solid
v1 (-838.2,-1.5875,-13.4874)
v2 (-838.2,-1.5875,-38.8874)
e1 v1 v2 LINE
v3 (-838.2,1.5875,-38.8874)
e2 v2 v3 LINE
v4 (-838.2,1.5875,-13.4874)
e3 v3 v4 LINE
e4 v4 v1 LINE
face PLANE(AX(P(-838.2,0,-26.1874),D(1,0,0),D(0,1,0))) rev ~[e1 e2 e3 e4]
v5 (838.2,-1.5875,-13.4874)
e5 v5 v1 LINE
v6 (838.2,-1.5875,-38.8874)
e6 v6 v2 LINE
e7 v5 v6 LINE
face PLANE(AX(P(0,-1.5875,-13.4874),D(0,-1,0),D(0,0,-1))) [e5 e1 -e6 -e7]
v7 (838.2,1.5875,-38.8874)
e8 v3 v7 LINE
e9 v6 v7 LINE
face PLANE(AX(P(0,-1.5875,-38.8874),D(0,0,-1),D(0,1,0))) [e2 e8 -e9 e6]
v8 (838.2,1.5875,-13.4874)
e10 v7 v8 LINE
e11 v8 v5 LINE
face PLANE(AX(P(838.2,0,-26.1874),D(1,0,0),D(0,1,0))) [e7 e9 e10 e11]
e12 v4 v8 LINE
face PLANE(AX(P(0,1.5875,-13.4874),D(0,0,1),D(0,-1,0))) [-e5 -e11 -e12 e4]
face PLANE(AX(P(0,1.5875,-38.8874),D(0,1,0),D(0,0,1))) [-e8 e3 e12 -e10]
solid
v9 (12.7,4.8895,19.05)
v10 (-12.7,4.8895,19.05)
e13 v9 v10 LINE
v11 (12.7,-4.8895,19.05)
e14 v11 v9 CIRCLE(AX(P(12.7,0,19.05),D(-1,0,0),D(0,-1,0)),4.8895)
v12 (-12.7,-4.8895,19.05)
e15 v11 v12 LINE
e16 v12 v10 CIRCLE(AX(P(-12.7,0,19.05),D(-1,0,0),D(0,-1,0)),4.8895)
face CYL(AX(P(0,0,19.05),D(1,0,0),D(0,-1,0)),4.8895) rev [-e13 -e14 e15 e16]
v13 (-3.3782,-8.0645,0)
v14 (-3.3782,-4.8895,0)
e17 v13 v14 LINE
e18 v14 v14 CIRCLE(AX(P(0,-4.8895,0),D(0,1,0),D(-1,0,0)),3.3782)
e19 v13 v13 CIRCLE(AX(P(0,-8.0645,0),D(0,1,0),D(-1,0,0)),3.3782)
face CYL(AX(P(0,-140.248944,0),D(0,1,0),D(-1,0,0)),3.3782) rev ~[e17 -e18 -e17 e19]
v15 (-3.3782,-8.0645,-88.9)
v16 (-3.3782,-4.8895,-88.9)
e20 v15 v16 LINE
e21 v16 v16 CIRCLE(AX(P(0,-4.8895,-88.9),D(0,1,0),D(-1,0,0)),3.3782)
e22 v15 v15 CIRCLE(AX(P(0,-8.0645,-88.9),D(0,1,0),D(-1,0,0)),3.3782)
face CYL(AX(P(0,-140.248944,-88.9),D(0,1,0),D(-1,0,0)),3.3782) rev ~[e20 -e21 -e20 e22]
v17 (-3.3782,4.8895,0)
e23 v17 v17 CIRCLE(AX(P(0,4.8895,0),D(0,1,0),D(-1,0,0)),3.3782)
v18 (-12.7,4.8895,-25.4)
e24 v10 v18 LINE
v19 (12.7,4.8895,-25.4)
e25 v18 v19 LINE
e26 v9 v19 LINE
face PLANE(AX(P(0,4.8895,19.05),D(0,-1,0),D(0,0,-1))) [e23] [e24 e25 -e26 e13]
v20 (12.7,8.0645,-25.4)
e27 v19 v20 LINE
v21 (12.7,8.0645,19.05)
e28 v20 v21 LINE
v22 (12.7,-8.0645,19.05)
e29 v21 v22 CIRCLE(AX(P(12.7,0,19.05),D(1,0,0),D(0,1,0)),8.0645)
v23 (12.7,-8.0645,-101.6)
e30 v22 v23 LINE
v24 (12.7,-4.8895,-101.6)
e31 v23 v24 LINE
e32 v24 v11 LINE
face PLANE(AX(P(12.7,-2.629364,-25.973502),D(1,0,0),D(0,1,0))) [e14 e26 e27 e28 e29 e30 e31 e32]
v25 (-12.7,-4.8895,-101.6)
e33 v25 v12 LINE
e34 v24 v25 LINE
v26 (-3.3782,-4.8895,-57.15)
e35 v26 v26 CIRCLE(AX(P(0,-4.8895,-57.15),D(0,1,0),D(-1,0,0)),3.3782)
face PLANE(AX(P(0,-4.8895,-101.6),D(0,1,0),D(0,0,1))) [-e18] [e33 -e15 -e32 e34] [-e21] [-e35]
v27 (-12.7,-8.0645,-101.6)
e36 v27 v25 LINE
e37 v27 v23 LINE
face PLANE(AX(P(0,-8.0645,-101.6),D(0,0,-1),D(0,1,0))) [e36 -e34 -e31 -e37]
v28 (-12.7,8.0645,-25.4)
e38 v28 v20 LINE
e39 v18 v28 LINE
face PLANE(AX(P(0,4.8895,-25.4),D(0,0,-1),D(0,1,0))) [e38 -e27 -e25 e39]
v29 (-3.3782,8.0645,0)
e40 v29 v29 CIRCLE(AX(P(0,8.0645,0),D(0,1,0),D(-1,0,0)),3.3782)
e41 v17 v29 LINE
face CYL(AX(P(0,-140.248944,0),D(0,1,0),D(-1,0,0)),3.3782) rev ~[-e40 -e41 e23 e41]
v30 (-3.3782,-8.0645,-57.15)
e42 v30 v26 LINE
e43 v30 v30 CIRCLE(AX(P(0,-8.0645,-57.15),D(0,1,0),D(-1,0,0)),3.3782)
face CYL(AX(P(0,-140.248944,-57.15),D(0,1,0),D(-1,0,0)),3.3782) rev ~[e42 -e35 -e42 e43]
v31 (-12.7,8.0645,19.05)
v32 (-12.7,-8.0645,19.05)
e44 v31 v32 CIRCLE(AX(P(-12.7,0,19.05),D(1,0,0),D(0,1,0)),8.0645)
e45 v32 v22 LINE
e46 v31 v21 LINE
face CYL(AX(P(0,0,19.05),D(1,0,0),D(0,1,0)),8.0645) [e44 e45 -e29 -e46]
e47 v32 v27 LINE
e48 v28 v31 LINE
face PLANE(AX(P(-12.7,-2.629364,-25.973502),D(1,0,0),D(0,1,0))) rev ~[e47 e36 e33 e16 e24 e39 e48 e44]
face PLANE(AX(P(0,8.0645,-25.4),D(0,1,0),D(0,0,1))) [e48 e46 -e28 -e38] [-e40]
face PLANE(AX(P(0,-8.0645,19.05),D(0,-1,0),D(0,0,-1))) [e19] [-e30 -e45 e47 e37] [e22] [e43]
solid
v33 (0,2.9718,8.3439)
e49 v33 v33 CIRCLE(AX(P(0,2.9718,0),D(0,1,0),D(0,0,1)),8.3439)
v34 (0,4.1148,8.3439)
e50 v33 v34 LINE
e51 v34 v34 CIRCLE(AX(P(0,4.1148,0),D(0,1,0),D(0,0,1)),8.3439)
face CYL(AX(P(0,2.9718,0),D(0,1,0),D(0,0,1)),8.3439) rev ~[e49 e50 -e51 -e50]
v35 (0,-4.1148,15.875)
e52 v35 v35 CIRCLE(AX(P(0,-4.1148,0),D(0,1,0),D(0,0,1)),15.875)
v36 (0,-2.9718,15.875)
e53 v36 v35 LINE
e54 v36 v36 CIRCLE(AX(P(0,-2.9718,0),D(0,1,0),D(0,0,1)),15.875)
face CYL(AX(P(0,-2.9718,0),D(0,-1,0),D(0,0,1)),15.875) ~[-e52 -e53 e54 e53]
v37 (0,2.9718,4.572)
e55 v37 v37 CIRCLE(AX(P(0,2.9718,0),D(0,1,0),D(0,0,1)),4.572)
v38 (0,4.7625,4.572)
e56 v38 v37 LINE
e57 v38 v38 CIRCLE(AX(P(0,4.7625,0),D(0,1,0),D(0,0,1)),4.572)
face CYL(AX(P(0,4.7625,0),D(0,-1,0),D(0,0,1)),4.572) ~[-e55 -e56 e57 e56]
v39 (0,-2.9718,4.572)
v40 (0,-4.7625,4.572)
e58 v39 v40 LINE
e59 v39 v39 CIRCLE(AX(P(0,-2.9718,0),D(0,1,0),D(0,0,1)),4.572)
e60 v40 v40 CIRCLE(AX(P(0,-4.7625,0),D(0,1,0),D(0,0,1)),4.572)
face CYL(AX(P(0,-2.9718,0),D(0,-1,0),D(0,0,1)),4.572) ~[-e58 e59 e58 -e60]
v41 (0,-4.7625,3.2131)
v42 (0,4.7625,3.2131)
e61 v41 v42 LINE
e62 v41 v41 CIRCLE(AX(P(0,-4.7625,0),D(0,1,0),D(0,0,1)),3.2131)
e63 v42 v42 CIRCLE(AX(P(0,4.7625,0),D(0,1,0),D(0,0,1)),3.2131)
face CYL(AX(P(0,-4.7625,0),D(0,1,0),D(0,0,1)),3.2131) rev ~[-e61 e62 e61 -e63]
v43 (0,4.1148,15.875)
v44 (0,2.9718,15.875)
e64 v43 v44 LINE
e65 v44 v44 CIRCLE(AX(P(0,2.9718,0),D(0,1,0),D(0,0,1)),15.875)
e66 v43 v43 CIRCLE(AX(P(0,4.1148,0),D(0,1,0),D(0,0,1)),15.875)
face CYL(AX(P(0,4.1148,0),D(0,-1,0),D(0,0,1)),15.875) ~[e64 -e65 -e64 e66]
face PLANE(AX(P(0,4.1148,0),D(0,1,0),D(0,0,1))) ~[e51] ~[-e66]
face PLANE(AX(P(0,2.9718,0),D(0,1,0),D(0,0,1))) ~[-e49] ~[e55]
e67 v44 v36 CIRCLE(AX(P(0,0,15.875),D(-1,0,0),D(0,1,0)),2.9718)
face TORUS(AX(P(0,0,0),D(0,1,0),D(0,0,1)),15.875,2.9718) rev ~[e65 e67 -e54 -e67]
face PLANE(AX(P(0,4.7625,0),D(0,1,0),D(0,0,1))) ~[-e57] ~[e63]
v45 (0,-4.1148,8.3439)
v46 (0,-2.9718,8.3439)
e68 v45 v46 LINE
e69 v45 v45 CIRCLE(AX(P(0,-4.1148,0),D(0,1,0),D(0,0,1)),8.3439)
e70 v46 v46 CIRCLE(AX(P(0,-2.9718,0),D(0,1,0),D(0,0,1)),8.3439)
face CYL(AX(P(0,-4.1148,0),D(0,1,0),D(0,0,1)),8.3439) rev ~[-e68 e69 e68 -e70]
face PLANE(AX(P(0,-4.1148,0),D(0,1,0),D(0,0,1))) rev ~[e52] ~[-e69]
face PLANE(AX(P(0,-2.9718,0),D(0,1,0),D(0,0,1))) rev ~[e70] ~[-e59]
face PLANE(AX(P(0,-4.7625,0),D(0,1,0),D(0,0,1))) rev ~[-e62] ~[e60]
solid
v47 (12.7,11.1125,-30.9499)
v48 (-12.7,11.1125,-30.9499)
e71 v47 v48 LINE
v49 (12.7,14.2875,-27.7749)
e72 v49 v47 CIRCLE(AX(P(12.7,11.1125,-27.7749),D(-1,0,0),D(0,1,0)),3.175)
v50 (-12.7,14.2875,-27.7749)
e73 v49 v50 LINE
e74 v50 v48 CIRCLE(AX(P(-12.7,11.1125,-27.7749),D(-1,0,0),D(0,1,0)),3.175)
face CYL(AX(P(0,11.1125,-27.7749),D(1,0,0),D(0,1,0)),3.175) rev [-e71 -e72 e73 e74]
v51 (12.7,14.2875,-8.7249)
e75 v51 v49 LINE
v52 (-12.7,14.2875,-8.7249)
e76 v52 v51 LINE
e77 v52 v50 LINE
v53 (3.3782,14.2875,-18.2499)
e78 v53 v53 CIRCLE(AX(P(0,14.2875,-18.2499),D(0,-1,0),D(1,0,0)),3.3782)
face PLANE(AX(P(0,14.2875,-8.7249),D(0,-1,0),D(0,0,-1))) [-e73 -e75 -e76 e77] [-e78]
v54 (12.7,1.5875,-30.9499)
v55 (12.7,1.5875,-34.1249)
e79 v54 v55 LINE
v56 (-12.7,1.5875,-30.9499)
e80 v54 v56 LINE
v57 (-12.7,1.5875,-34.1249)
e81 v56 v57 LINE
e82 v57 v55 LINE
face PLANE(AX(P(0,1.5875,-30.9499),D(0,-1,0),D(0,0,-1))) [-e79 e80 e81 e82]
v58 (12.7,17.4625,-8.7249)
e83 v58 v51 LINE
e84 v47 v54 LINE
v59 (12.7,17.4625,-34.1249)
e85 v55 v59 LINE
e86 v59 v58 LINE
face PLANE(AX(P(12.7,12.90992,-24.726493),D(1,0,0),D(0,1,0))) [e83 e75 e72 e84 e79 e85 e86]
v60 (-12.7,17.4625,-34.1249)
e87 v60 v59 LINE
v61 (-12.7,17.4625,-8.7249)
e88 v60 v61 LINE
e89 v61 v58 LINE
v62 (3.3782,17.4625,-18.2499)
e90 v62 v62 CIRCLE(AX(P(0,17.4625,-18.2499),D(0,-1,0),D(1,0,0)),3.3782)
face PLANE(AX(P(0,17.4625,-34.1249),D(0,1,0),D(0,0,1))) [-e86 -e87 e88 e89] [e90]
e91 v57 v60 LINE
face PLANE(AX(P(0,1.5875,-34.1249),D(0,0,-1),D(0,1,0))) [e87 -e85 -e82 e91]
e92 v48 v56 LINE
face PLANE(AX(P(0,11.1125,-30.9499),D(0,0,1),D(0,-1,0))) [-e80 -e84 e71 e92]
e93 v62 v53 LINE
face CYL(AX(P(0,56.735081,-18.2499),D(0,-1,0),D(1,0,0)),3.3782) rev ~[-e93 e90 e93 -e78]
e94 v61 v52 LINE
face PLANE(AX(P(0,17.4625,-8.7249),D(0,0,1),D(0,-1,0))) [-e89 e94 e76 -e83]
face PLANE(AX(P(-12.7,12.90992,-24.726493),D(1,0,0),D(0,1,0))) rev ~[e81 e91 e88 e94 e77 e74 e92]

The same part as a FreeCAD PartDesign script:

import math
import FreeCAD as App
import Part
import Sketcher

V = App.Vector
Q = App.Units.Quantity


def add_polygon(sketch, points):
    """Adds a closed chain of lines whose ends are joined by coincident constraints."""
    first, n = sketch.GeometryCount, len(points)
    for a, b in zip(points, points[1:] + points[:1]):
        sketch.addGeometry(Part.LineSegment(App.Vector(*a, 0), App.Vector(*b, 0)), False)
    for i in range(n):
        sketch.addConstraint(Sketcher.Constraint("Coincident", first + i, 2, first + (i + 1) % n, 1))

doc = App.newDocument("Part")
body = doc.addObject("PartDesign::Body", "Body")

# Sketch on YZ plane
sketch1 = doc.addObject("Sketcher::SketchObject", "Sketch")
body.addObject(sketch1)
sketch1.AttachmentSupport = (doc.YZ_Plane, [""])
sketch1.MapMode = "FlatFace"
sketch1.addGeometry([
    Part.LineSegment(V(-4.8, 4.6, 0), V(-4.8, 3.2, 0)),  # 0
    Part.LineSegment(V(-4.8, 3.2, 0), V(4.8, 3.2, 0)),  # 1
    Part.LineSegment(V(4.8, 3.2, 0), V(4.8, 4.6, 0)),  # 2
    Part.LineSegment(V(4.8, 4.6, 0), V(3, 4.6, 0)),  # 3
    Part.LineSegment(V(3, 4.6, 0), V(3, 8.3, 0)),  # 4
    Part.LineSegment(V(3, 8.3, 0), V(4.1, 8.3, 0)),  # 5
    Part.LineSegment(V(4.1, 8.3, 0), V(4.1, 15.9, 0)),  # 6
    Part.LineSegment(V(4.1, 15.9, 0), V(3, 15.9, 0)),  # 7
    Part.ArcOfCircle(Part.Circle(V(0, 15.9, 0), V(0, 0, 1), 3), math.radians(180), math.radians(360)),  # 8
    Part.LineSegment(V(-3, 15.9, 0), V(-4.1, 15.9, 0)),  # 9
    Part.LineSegment(V(-4.1, 15.9, 0), V(-4.1, 8.3, 0)),  # 10
    Part.LineSegment(V(-4.1, 8.3, 0), V(-3, 8.3, 0)),  # 11
    Part.LineSegment(V(-3, 8.3, 0), V(-3, 4.6, 0)),  # 12
    Part.LineSegment(V(-3, 4.6, 0), V(-4.8, 4.6, 0)),  # 13
], False)
sketch1.addConstraint([
    Sketcher.Constraint("Coincident", 0, 2, 1, 1),
    Sketcher.Constraint("Coincident", 1, 2, 2, 1),
    Sketcher.Constraint("Coincident", 2, 2, 3, 1),
    Sketcher.Constraint("Coincident", 3, 2, 4, 1),
    Sketcher.Constraint("Coincident", 4, 2, 5, 1),
    Sketcher.Constraint("Coincident", 5, 2, 6, 1),
    Sketcher.Constraint("Coincident", 6, 2, 7, 1),
    Sketcher.Constraint("Coincident", 7, 2, 8, 2),
    Sketcher.Constraint("Coincident", 8, 1, 9, 1),
    Sketcher.Constraint("Coincident", 9, 2, 10, 1),
    Sketcher.Constraint("Coincident", 10, 2, 11, 1),
    Sketcher.Constraint("Coincident", 11, 2, 12, 1),
    Sketcher.Constraint("Coincident", 12, 2, 13, 1),
    Sketcher.Constraint("Coincident", 13, 2, 0, 1),
    Sketcher.Constraint("Vertical", 0),
    Sketcher.Constraint("Horizontal", 1),
    Sketcher.Constraint("Vertical", 2),
    Sketcher.Constraint("Horizontal", 3),
    Sketcher.Constraint("Vertical", 4),
    Sketcher.Constraint("Horizontal", 5),
    Sketcher.Constraint("Vertical", 6),
    Sketcher.Constraint("Horizontal", 7),
    Sketcher.Constraint("Horizontal", 9),
    Sketcher.Constraint("Vertical", 10),
    Sketcher.Constraint("Horizontal", 11),
    Sketcher.Constraint("Vertical", 12),
    Sketcher.Constraint("Horizontal", 13),
    Sketcher.Constraint("Symmetric", 7, 2, 8, 1, -2),
    Sketcher.Constraint("Symmetric", 5, 2, 10, 2, -2),
    Sketcher.Constraint("Symmetric", 3, 2, 12, 2, -2),
    Sketcher.Constraint("Horizontal", 8, 3, 6, 2),
    Sketcher.Constraint("Vertical", 4, 2, 7, 2),
    Sketcher.Constraint("Equal", 3, 13),
    Sketcher.Constraint("Radius", 8, Q("0.117 in")),
    Sketcher.Constraint("DistanceX", 1, 1, 1, 2, Q("0.375 in")),
    Sketcher.Constraint("DistanceX", 5, 1, 5, 2, Q("0.045 in")),
    Sketcher.Constraint("DistanceY", -1, 1, 2, 2, Q("0.18 in")),
    Sketcher.Constraint("DistanceY", 0, 2, 0, 1, Q("0.0535 in")),
    Sketcher.Constraint("DistanceY", 4, 1, 4, 2, Q("0.1485 in")),
    Sketcher.Constraint("DistanceY", 6, 1, 6, 2, Q("0.2965 in")),
])
revolution = doc.addObject("PartDesign::Revolution", "Revolution")
body.addObject(revolution)
revolution.Profile = sketch1
revolution.ReferenceAxis = (sketch1, ["H_Axis"])
revolution.Angle = 360
body2 = doc.addObject("PartDesign::Body", "Body001")

# Sketch on YZ plane
sketch2 = doc.addObject("Sketcher::SketchObject", "Sketch001")
body2.addObject(sketch2)
sketch2.AttachmentSupport = (doc.getObject("YZ_Plane001"), [""])
sketch2.MapMode = "FlatFace"
add_polygon(sketch2, [(-1.6, -38.9), (1.6, -38.9), (1.6, -13.5), (-1.6, -13.5)])  # lines 0-3
sketch2.addConstraint([
    Sketcher.Constraint("Horizontal", 0),
    Sketcher.Constraint("Vertical", 1),
    Sketcher.Constraint("Horizontal", 2),
    Sketcher.Constraint("Vertical", 3),
    Sketcher.Constraint("DistanceY", 1, 1, 1, 2, Q("1 in")),
    Sketcher.Constraint("DistanceX", 0, 1, 0, 2, Q("0.125 in")),
    Sketcher.Constraint("DistanceX", -1, 1, 0, 2, Q("0.0625 in")),
    Sketcher.Constraint("DistanceY", 0, 2, -1, 1, Q("1.531 in")),
])
pad1 = doc.addObject("PartDesign::Pad", "Pad")
body2.addObject(pad1)
pad1.Profile = sketch2
pad1.Length = Q("66 in")
pad1.Midplane = True
body3 = doc.addObject("PartDesign::Body", "Body002")

# Sketch on YZ plane
sketch3 = doc.addObject("Sketcher::SketchObject", "Sketch002")
body3.addObject(sketch3)
sketch3.AttachmentSupport = (doc.getObject("YZ_Plane002"), [""])
sketch3.MapMode = "FlatFace"
sketch3.addGeometry([
    Part.LineSegment(V(4.9, 19.1, 0), V(4.9, -25.4, 0)),  # 0
    Part.LineSegment(V(4.9, -25.4, 0), V(8.1, -25.4, 0)),  # 1
    Part.LineSegment(V(8.1, -25.4, 0), V(8.1, 19.1, 0)),  # 2
    Part.ArcOfCircle(Part.Circle(V(0, 19.1, 0), V(0, 0, 1), 8.1), math.radians(0), math.radians(180)),  # 3
    Part.LineSegment(V(-8.1, 19.1, 0), V(-8.1, -101.6, 0)),  # 4
    Part.LineSegment(V(-8.1, -101.6, 0), V(-4.9, -101.6, 0)),  # 5
    Part.LineSegment(V(-4.9, -101.6, 0), V(-4.9, 19.1, 0)),  # 6
    Part.ArcOfCircle(Part.Circle(V(0, 19.1, 0), V(0, 0, 1), 4.9), math.radians(0), math.radians(180)),  # 7
], False)
sketch3.addConstraint([
    Sketcher.Constraint("Coincident", 0, 2, 1, 1),
    Sketcher.Constraint("Coincident", 1, 2, 2, 1),
    Sketcher.Constraint("Tangent", 2, 2, 3, 1),
    Sketcher.Constraint("Tangent", 3, 2, 4, 1),
    Sketcher.Constraint("Coincident", 4, 2, 5, 1),
    Sketcher.Constraint("Coincident", 5, 2, 6, 1),
    Sketcher.Constraint("Tangent", 6, 2, 7, 2),
    Sketcher.Constraint("Tangent", 7, 1, 0, 1),
    Sketcher.Constraint("Vertical", 0),
    Sketcher.Constraint("Horizontal", 1),
    Sketcher.Constraint("Vertical", 2),
    Sketcher.Constraint("Vertical", 4),
    Sketcher.Constraint("Horizontal", 5),
    Sketcher.Constraint("Vertical", 6),
    Sketcher.Constraint("Coincident", 7, 3, 3, 3),
    Sketcher.Constraint("PointOnObject", 3, 3, -2),
    Sketcher.Constraint("DistanceY", 0, 2, -1, 1, Q("1 in")),
    Sketcher.Constraint("DistanceY", 4, 2, -1, 1, Q("4 in")),
    Sketcher.Constraint("DistanceY", 0, 2, 0, 1, Q("1.75 in")),
    Sketcher.Constraint("Radius", 3, Q("0.3175 in")),
    Sketcher.Constraint("Radius", 7, Q("0.1925 in")),
])
pad2 = doc.addObject("PartDesign::Pad", "Pad001")
body3.addObject(pad2)
pad2.Profile = sketch3
pad2.Length = Q("1 in")
pad2.Midplane = True

# Sketch on XZ plane
sketch4 = doc.addObject("Sketcher::SketchObject", "Sketch003")
body3.addObject(sketch4)
sketch4.AttachmentSupport = (doc.getObject("XZ_Plane002"), [""])
sketch4.MapMode = "FlatFace"
sketch4.AttachmentOffset = App.Placement(V(0, 0, 0.3175 * 25.4), App.Rotation())
sketch4.addGeometry([
    Part.Circle(V(0, 0, 0), V(0, 0, 1), 3.4),
    Part.Circle(V(0, -57.1, 0), V(0, 0, 1), 3.4),
    Part.Circle(V(0, -88.9, 0), V(0, 0, 1), 3.4),
], False)
sketch4.addConstraint([
    Sketcher.Constraint("Coincident", 0, 3, -1, 1),
    Sketcher.Constraint("Equal", 0, 1),
    Sketcher.Constraint("Equal", 1, 2),
    Sketcher.Constraint("PointOnObject", 1, 3, -2),
    Sketcher.Constraint("PointOnObject", 2, 3, -2),
    Sketcher.Constraint("Diameter", 0, Q("0.266 in")),
    Sketcher.Constraint("DistanceY", 2, 3, -1, 1, Q("3.5 in")),
    Sketcher.Constraint("DistanceY", 1, 3, -1, 1, Q("2.25 in")),
])
doc.recompute()
hole = doc.addObject("PartDesign::Hole", "Hole")
body3.addObject(hole)
hole.Profile = sketch4
hole.ThreadType = "None"
hole.Diameter = Q("0.266 in")
hole.DepthType = "ThroughAll"
body4 = doc.addObject("PartDesign::Body", "Body003")

# Sketch on YZ plane
sketch5 = doc.addObject("Sketcher::SketchObject", "Sketch004")
body4.addObject(sketch5)
sketch5.AttachmentSupport = (doc.getObject("YZ_Plane003"), [""])
sketch5.MapMode = "FlatFace"
sketch5.addGeometry([
    Part.LineSegment(V(1.6, -30.9, 0), V(1.6, -34.1, 0)),  # 0
    Part.LineSegment(V(1.6, -34.1, 0), V(17.5, -34.1, 0)),  # 1
    Part.LineSegment(V(17.5, -34.1, 0), V(17.5, -8.7, 0)),  # 2
    Part.LineSegment(V(17.5, -8.7, 0), V(14.3, -8.7, 0)),  # 3
    Part.LineSegment(V(14.3, -8.7, 0), V(14.3, -27.8, 0)),  # 4
    Part.ArcOfCircle(Part.Circle(V(11.1, -27.8, 0), V(0, 0, 1), 3.2), math.radians(-90), math.radians(0)),  # 5
    Part.LineSegment(V(11.1, -30.9, 0), V(1.6, -30.9, 0)),  # 6
], False)
sketch5.addConstraint([
    Sketcher.Constraint("Coincident", 0, 2, 1, 1),
    Sketcher.Constraint("Coincident", 1, 2, 2, 1),
    Sketcher.Constraint("Coincident", 2, 2, 3, 1),
    Sketcher.Constraint("Coincident", 3, 2, 4, 1),
    Sketcher.Constraint("Tangent", 4, 2, 5, 2),
    Sketcher.Constraint("Tangent", 5, 1, 6, 1),
    Sketcher.Constraint("Coincident", 6, 2, 0, 1),
    Sketcher.Constraint("Vertical", 0),
    Sketcher.Constraint("Horizontal", 1),
    Sketcher.Constraint("Vertical", 2),
    Sketcher.Constraint("Horizontal", 3),
    Sketcher.Constraint("Vertical", 4),
    Sketcher.Constraint("Horizontal", 6),
    Sketcher.Constraint("Equal", 3, 0),
    Sketcher.Constraint("DistanceY", 2, 1, 2, 2, Q("1 in")),
    Sketcher.Constraint("Radius", 5, Q("0.125 in")),
    Sketcher.Constraint("DistanceY", 4, 2, 4, 1, Q("0.75 in")),
    Sketcher.Constraint("DistanceX", 0, 2, 3, 2, Q("0.5 in")),
    Sketcher.Constraint("DistanceX", -1, 1, 5, 3, Q("0.4375 in")),
    Sketcher.Constraint("DistanceY", 5, 3, -1, 1, Q("1.0935 in")),
])
pad3 = doc.addObject("PartDesign::Pad", "Pad002")
body4.addObject(pad3)
pad3.Profile = sketch5
pad3.Length = Q("1 in")
pad3.Midplane = True

# Sketch on XZ plane
sketch6 = doc.addObject("Sketcher::SketchObject", "Sketch005")
body4.addObject(sketch6)
sketch6.AttachmentSupport = (doc.getObject("XZ_Plane003"), [""])
sketch6.MapMode = "FlatFace"
sketch6.AttachmentOffset = App.Placement(V(0, 0, -0.6875 * 25.4), App.Rotation())
sketch6.addGeometry(Part.Circle(V(0, -18.2, 0), V(0, 0, 1), 3.4), False)
sketch6.addConstraint([
    Sketcher.Constraint("PointOnObject", 0, 3, -2),
    Sketcher.Constraint("Diameter", 0, Q("0.266 in")),
    Sketcher.Constraint("DistanceY", 0, 3, -1, 1, Q("0.7185 in")),
])
doc.recompute()
hole2 = doc.addObject("PartDesign::Hole", "Hole001")
body4.addObject(hole2)
hole2.Profile = sketch6
hole2.ThreadType = "None"
hole2.Diameter = Q("0.266 in")
hole2.DepthType = "ThroughAll"
hole2.Reversed = True

doc.recompute()
